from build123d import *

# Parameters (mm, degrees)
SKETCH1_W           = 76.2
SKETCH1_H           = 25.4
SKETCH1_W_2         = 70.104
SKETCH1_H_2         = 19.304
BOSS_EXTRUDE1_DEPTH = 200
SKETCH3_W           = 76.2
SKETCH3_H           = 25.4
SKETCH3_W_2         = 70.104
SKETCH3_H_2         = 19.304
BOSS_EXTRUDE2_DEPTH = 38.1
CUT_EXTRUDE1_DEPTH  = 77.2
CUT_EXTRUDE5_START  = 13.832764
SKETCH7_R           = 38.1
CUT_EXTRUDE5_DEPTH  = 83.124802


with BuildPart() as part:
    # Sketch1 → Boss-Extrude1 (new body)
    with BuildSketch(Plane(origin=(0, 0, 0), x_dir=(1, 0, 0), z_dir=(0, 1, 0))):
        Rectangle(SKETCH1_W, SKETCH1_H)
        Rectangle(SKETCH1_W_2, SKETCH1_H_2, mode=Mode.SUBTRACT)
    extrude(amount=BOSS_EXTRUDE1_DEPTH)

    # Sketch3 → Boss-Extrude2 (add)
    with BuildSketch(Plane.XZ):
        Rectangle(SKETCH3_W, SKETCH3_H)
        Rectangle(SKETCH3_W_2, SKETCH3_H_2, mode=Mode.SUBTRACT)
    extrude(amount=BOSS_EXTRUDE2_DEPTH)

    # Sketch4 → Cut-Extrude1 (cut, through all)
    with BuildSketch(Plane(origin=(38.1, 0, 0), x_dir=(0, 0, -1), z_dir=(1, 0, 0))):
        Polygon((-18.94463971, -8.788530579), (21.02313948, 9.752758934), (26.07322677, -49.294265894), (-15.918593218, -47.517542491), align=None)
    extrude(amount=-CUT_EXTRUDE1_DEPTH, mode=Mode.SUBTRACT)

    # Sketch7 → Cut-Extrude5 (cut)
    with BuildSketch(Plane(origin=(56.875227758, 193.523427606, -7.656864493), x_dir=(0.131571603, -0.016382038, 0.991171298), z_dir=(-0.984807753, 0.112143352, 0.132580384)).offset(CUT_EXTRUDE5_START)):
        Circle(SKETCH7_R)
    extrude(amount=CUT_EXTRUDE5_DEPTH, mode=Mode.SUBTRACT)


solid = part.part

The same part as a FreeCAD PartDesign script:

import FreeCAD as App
import Part
import Sketcher

V = App.Vector
Q = App.Units.Quantity

doc = App.newDocument("Part")
body = doc.addObject("PartDesign::Body", "Body")

# Sketch on XZ plane
sketch1 = body.newObject("Sketcher::SketchObject", "Sketch")
sketch1.AttachmentSupport = (doc.getObject("XZ_Plane"), [""])
sketch1.MapMode = "FlatFace"
sketch1.addGeometry([
    Part.LineSegment(V(-38, -13, 0), V(-38, 13, 0)),  # 0
    Part.LineSegment(V(-38, 13, 0), V(38, 13, 0)),  # 1
    Part.LineSegment(V(38, 13, 0), V(38, -13, 0)),  # 2
    Part.LineSegment(V(38, -13, 0), V(-38, -13, 0)),  # 3
    Part.LineSegment(V(35, 10, 0), V(-35, 10, 0)),  # 4
    Part.LineSegment(V(-35, 10, 0), V(-35, -10, 0)),  # 5
    Part.LineSegment(V(-35, -10, 0), V(35, -10, 0)),  # 6
    Part.LineSegment(V(35, -10, 0), V(35, 10, 0)),  # 7
], False)
sketch1.addConstraint([
    Sketcher.Constraint("Coincident", 0, 2, 1, 1),
    Sketcher.Constraint("Coincident", 1, 2, 2, 1),
    Sketcher.Constraint("Coincident", 2, 2, 3, 1),
    Sketcher.Constraint("Coincident", 3, 2, 0, 1),
    Sketcher.Constraint("Coincident", 4, 2, 5, 1),
    Sketcher.Constraint("Coincident", 5, 2, 6, 1),
    Sketcher.Constraint("Coincident", 6, 2, 7, 1),
    Sketcher.Constraint("Coincident", 7, 2, 4, 1),
    Sketcher.Constraint("Vertical", 0),
    Sketcher.Constraint("Horizontal", 1),
    Sketcher.Constraint("Vertical", 2),
    Sketcher.Constraint("Horizontal", 3),
    Sketcher.Constraint("Horizontal", 4),
    Sketcher.Constraint("Vertical", 5),
    Sketcher.Constraint("Horizontal", 6),
    Sketcher.Constraint("Vertical", 7),
    Sketcher.Constraint("Symmetric", 0, 2, 2, 2, -1, 1),
    Sketcher.Constraint("Symmetric", 4, 2, 6, 2, -1, 1),
    Sketcher.Constraint("DistanceX", 1, 1, 1, 2, Q("3 in")),
    Sketcher.Constraint("DistanceY", 0, 1, 0, 2, Q("1 in")),
    Sketcher.Constraint("DistanceX", 4, 2, 4, 1, Q("2.76 in")),
    Sketcher.Constraint("DistanceY", 5, 2, 5, 1, Q("0.76 in")),
])
pad1 = body.newObject("PartDesign::Pad", "Pad")
pad1.Profile = sketch1
pad1.Length = 200
pad1.Reversed = True

# Sketch on XZ plane
sketch2 = body.newObject("Sketcher::SketchObject", "Sketch001")
sketch2.AttachmentSupport = (doc.getObject("XZ_Plane"), [""])
sketch2.MapMode = "FlatFace"
sketch2.addGeometry([
    Part.LineSegment(V(-38, 13, 0), V(-38, -13, 0)),  # 0
    Part.LineSegment(V(-38, -13, 0), V(38, -13, 0)),  # 1
    Part.LineSegment(V(38, -13, 0), V(38, 13, 0)),  # 2
    Part.LineSegment(V(38, 13, 0), V(-38, 13, 0)),  # 3
    Part.LineSegment(V(35, -10, 0), V(-35, -10, 0)),  # 4
    Part.LineSegment(V(-35, -10, 0), V(-35, 10, 0)),  # 5
    Part.LineSegment(V(-35, 10, 0), V(35, 10, 0)),  # 6
    Part.LineSegment(V(35, 10, 0), V(35, -10, 0)),  # 7
], False)
sketch2.addConstraint([
    Sketcher.Constraint("Coincident", 0, 2, 1, 1),
    Sketcher.Constraint("Coincident", 1, 2, 2, 1),
    Sketcher.Constraint("Coincident", 2, 2, 3, 1),
    Sketcher.Constraint("Coincident", 3, 2, 0, 1),
    Sketcher.Constraint("Coincident", 4, 2, 5, 1),
    Sketcher.Constraint("Coincident", 5, 2, 6, 1),
    Sketcher.Constraint("Coincident", 6, 2, 7, 1),
    Sketcher.Constraint("Coincident", 7, 2, 4, 1),
    Sketcher.Constraint("Vertical", 0),
    Sketcher.Constraint("Horizontal", 1),
    Sketcher.Constraint("Vertical", 2),
    Sketcher.Constraint("Horizontal", 3),
    Sketcher.Constraint("Horizontal", 4),
    Sketcher.Constraint("Vertical", 5),
    Sketcher.Constraint("Horizontal", 6),
    Sketcher.Constraint("Vertical", 7),
    Sketcher.Constraint("Symmetric", 0, 2, 2, 2, -1, 1),
    Sketcher.Constraint("Symmetric", 4, 2, 6, 2, -1, 1),
    Sketcher.Constraint("DistanceX", 1, 1, 1, 2, Q("3 in")),
    Sketcher.Constraint("DistanceY", 0, 2, 0, 1, Q("1 in")),
    Sketcher.Constraint("DistanceX", 4, 2, 4, 1, Q("2.76 in")),
    Sketcher.Constraint("DistanceY", 5, 1, 5, 2, Q("0.76 in")),
])
pad2 = body.newObject("PartDesign::Pad", "Pad001")
pad2.Profile = sketch2
pad2.Length = Q("1.5 in")

# Sketch on YZ plane
sketch3 = body.newObject("Sketcher::SketchObject", "Sketch002")
sketch3.AttachmentSupport = (doc.getObject("YZ_Plane"), [""])
sketch3.MapMode = "FlatFace"
sketch3.AttachmentOffset = App.Placement(V(0, 0, 1.5 * 25.4), App.Rotation())
sketch3.addGeometry([
    Part.LineSegment(V(10, -21, 0), V(-9, 19, 0)),
    Part.LineSegment(V(-9, 19, 0), V(-48, 16, 0)),
    Part.LineSegment(V(-48, 16, 0), V(-49, -26, 0)),
    Part.LineSegment(V(-49, -26, 0), V(10, -21, 0)),
], False)
sketch3.addConstraint([
    Sketcher.Constraint("Coincident", 0, 2, 1, 1),
    Sketcher.Constraint("Coincident", 1, 2, 2, 1),
    Sketcher.Constraint("Coincident", 2, 2, 3, 1),
    Sketcher.Constraint("Coincident", 3, 2, 0, 1),
    Sketcher.Constraint("DistanceX", 1, 2, 3, 2, Q("57.270301 mm")),
    Sketcher.Constraint("Distance", 1, Q("38.84705 mm")),
    Sketcher.Constraint("Distance", 2, Q("42.029391 mm")),
    Sketcher.Constraint("Distance", 3, Q("59.26259 mm")),
    Sketcher.Constraint("DistanceX", 0, 2, -1, 1, Q("8.788531 mm")),
    Sketcher.Constraint("DistanceY", -1, 1, 0, 2, Q("18.94464 mm")),
    Sketcher.Constraint("DistanceX", -1, 1, 3, 2, Q("9.752759 mm")),
    Sketcher.Constraint("DistanceY", 3, 2, -1, 1, Q("21.023139 mm")),
])
pocket1 = body.newObject("PartDesign::Pocket", "Pocket")
pocket1.Profile = sketch3
pocket1.Type = "ThroughAll"

# Sketch on an angled plane
sketch4 = body.newObject("Sketcher::SketchObject", "Sketch003")
sketch4.Placement = App.Placement(V(43.252615, 195.07468, -5.822911), App.Rotation(V(0.131571603, -0.016382038, 0.991171298), V(0.113325209, 0.993556992, 0.001378277), V(-0.984807753, 0.112143352, 0.132580384), "ZXY"))
sketch4.addGeometry(Part.Circle(V(0, 0, 0), V(0, 0, 1), 38), False)
sketch4.addConstraint([
    Sketcher.Constraint("Coincident", 0, 3, -1, 1),
    Sketcher.Constraint("Diameter", 0, Q("3 in")),
])
pocket2 = body.newObject("PartDesign::Pocket", "Pocket001")
pocket2.Profile = sketch4
pocket2.Length = 83.124802
pocket2.Reversed = True

doc.recompute()
